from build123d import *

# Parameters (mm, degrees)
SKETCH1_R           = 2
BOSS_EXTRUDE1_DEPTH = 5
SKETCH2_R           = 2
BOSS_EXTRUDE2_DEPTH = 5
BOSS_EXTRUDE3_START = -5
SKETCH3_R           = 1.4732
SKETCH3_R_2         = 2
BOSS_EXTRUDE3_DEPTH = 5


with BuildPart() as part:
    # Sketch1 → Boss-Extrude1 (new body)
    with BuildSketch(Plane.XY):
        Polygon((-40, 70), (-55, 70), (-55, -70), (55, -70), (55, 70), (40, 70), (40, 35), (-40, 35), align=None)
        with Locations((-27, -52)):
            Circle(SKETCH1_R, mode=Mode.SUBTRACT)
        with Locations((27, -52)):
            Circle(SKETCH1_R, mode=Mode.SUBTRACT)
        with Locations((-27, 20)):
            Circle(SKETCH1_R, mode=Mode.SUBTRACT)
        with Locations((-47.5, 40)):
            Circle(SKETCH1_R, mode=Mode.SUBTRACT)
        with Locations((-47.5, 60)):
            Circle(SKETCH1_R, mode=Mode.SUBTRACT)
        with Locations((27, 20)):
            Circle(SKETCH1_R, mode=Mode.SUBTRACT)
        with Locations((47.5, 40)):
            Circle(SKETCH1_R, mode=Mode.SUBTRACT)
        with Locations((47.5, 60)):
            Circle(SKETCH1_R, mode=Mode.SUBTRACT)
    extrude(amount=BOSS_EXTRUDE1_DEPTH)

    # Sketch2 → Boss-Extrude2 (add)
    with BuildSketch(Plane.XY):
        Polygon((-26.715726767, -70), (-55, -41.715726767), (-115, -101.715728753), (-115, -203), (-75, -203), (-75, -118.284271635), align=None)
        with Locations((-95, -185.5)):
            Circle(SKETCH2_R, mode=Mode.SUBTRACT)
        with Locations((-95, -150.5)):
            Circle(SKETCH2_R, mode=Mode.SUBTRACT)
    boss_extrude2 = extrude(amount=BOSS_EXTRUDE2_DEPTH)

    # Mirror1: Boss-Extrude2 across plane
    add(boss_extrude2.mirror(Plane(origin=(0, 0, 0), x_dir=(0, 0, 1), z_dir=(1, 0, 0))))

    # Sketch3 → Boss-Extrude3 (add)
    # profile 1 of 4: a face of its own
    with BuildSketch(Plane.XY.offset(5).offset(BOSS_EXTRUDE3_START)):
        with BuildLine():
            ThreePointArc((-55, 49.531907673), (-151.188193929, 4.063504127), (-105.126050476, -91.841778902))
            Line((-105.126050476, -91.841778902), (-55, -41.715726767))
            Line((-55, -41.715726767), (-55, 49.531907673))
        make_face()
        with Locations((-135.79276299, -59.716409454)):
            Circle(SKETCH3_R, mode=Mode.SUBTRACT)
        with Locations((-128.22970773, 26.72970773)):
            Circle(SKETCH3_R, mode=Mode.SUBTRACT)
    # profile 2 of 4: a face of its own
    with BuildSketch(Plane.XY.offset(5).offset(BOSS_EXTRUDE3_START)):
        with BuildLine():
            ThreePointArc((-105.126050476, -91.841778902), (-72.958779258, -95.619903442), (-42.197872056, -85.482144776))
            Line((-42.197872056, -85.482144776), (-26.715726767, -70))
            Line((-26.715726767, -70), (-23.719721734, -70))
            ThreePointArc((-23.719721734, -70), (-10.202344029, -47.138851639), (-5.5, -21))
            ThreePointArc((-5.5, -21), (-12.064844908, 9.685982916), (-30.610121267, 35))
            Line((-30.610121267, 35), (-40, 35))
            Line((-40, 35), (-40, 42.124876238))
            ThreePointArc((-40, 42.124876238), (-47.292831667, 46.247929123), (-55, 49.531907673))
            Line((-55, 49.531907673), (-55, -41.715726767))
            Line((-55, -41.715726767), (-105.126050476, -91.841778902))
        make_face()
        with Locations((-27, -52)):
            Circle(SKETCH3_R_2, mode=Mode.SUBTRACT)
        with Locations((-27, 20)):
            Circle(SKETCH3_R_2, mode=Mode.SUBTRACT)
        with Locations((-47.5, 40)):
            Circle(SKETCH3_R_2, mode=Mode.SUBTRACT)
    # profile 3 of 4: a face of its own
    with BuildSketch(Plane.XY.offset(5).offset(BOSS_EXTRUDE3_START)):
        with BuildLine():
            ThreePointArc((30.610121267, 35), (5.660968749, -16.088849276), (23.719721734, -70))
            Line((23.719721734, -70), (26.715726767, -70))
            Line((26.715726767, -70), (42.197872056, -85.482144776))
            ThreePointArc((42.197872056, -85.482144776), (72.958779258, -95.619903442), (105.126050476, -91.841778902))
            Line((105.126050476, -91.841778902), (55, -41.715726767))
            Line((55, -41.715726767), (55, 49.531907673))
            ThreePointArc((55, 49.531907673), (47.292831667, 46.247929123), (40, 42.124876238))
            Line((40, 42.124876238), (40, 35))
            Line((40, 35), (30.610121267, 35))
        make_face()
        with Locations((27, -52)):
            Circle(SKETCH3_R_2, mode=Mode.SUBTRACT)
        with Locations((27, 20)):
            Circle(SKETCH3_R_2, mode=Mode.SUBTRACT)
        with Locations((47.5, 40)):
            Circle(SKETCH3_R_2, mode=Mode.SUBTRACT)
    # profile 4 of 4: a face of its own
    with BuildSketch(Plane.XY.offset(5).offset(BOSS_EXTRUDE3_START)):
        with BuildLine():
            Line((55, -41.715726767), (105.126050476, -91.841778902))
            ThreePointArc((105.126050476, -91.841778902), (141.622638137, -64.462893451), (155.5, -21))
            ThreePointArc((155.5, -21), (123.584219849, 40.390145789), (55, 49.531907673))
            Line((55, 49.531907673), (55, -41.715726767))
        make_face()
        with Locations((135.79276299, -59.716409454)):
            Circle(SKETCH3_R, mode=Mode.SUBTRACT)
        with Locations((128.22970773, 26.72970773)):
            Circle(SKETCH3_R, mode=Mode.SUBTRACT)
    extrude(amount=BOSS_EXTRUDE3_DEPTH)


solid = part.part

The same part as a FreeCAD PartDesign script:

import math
import FreeCAD as App
import Part
import Sketcher

V = App.Vector
Q = App.Units.Quantity


def add_polygon(sketch, points):
    """Adds a closed chain of lines whose ends are joined by coincident constraints."""
    first, n = sketch.GeometryCount, len(points)
    for a, b in zip(points, points[1:] + points[:1]):
        sketch.addGeometry(Part.LineSegment(App.Vector(*a, 0), App.Vector(*b, 0)), False)
    for i in range(n):
        sketch.addConstraint(Sketcher.Constraint("Coincident", first + i, 2, first + (i + 1) % n, 1))

doc = App.newDocument("Part")
body = doc.addObject("PartDesign::Body", "Body")

# Sketch on XY plane
sketch1 = body.newObject("Sketcher::SketchObject", "Sketch")
sketch1.AttachmentSupport = (doc.getObject("XY_Plane"), [""])
sketch1.MapMode = "FlatFace"
add_polygon(sketch1, [(-40, 70), (-55, 70), (-55, -70), (55, -70), (55, 70), (40, 70), (40, 35), (-40, 35)])  # lines 0-7
sketch1.addGeometry(Part.Circle(V(-27, -52, 0), V(0, 0, 1), 2), False)  # 8
sketch1.addGeometry(Part.Circle(V(27, -52, 0), V(0, 0, 1), 2), False)  # 9
sketch1.addGeometry(Part.Circle(V(-27, 20, 0), V(0, 0, 1), 2), False)  # 10
sketch1.addGeometry(Part.Circle(V(-47.5, 40, 0), V(0, 0, 1), 2), False)  # 11
sketch1.addGeometry(Part.Circle(V(-47.5, 60, 0), V(0, 0, 1), 2), False)  # 12
sketch1.addGeometry(Part.Circle(V(27, 20, 0), V(0, 0, 1), 2), False)  # 13
sketch1.addGeometry(Part.Circle(V(47.5, 40, 0), V(0, 0, 1), 2), False)  # 14
sketch1.addGeometry(Part.Circle(V(47.5, 60, 0), V(0, 0, 1), 2), False)  # 15
sketch1.addConstraint([
    Sketcher.Constraint("Horizontal", 0),
    Sketcher.Constraint("Vertical", 1),
    Sketcher.Constraint("Horizontal", 2),
    Sketcher.Constraint("Vertical", 3),
    Sketcher.Constraint("Horizontal", 4),
    Sketcher.Constraint("Vertical", 5),
    Sketcher.Constraint("Horizontal", 6),
    Sketcher.Constraint("Vertical", 7),
    Sketcher.Constraint("Equal", 8, 9),
    Sketcher.Constraint("Equal", 9, 10),
    Sketcher.Constraint("Equal", 10, 11),
    Sketcher.Constraint("Equal", 11, 12),
    Sketcher.Constraint("Equal", 12, 13),
    Sketcher.Constraint("Equal", 13, 14),
    Sketcher.Constraint("Equal", 14, 15),
    Sketcher.Constraint("Symmetric", 0, 2, 2, 2, -1, 1),
    Sketcher.Constraint("Symmetric", 8, 3, 9, 3, -2),
    Sketcher.Constraint("Symmetric", 10, 3, 13, 3, -2),
    Sketcher.Constraint("Symmetric", 11, 3, 14, 3, -2),
    Sketcher.Constraint("Symmetric", 12, 3, 15, 3, -2),
    Sketcher.Constraint("Symmetric", 4, 2, 7, 2, -2),
    Sketcher.Constraint("Vertical", 8, 3, 10, 3),
    Sketcher.Constraint("Vertical", 11, 3, 12, 3),
    Sketcher.Constraint("Diameter", 8, Q("4 mm")),
    Sketcher.Constraint("DistanceX", 0, 2, 0, 1, Q("15 mm")),
    Sketcher.Constraint("DistanceX", 2, 1, 2, 2, Q("110 mm")),
    Sketcher.Constraint("DistanceY", 1, 2, 1, 1, Q("140 mm")),
    Sketcher.Constraint("DistanceY", 5, 2, 5, 1, Q("35 mm")),
    Sketcher.Constraint("DistanceX", 8, 3, -1, 1, Q("27 mm")),
    Sketcher.Constraint("DistanceY", 8, 3, -1, 1, Q("52 mm")),
    Sketcher.Constraint("DistanceY", -1, 1, 10, 3, Q("20 mm")),
    Sketcher.Constraint("DistanceY", -1, 1, 11, 3, Q("40 mm")),
    Sketcher.Constraint("DistanceY", -1, 1, 12, 3, Q("60 mm")),
    Sketcher.Constraint("DistanceX", 11, 3, 14, 3, Q("95 mm")),
])
pad1 = body.newObject("PartDesign::Pad", "Pad")
pad1.Profile = sketch1
pad1.Length = 5

# Sketch on XY plane
sketch2 = body.newObject("Sketcher::SketchObject", "Sketch001")
sketch2.AttachmentSupport = (doc.getObject("XY_Plane"), [""])
sketch2.MapMode = "FlatFace"
add_polygon(sketch2, [(-26.7, -70), (-55, -41.7), (-115, -101.7), (-115, -203), (-75, -203), (-75, -118.3)])  # lines 0-5
sketch2.addGeometry(Part.Circle(V(-95, -185.5, 0), V(0, 0, 1), 2), False)  # 6
sketch2.addGeometry(Part.Circle(V(-95, -150.5, 0), V(0, 0, 1), 2), False)  # 7
sketch2.addConstraint([
    Sketcher.Constraint("Vertical", 2),
    Sketcher.Constraint("Horizontal", 3),
    Sketcher.Constraint("Vertical", 4),
    Sketcher.Constraint("Equal", 6, 7),
    Sketcher.Constraint("Perpendicular", 0, 1),
    Sketcher.Constraint("Parallel", 1, 5),
    Sketcher.Constraint("Vertical", 6, 3, 7, 3),
    Sketcher.Constraint("Diameter", 6, Q("4 mm")),
    Sketcher.Constraint("DistanceX", 3, 1, 3, 2, Q("40 mm")),
    Sketcher.Constraint("Angle", 0, Q("135 deg")),
    Sketcher.Constraint("DistanceX", 6, 3, -1, 1, Q("95 mm")),
    Sketcher.Constraint("DistanceX", 0, 2, -1, 1, Q("55 mm")),
    Sketcher.Constraint("DistanceX", 1, 2, -1, 1, Q("115 mm")),
    Sketcher.Constraint("DistanceY", 2, 2, -1, 1, Q("203 mm")),
    Sketcher.Constraint("DistanceY", 5, 2, -1, 1, Q("70 mm")),
    Sketcher.Constraint("DistanceY", 6, 3, 7, 3, Q("35 mm")),
    Sketcher.Constraint("DistanceY", 6, 3, -1, 1, Q("185.5 mm")),
    Sketcher.Constraint("DistanceY", 2, 2, 2, 1, Q("101.284271 mm")),
])
pad2 = body.newObject("PartDesign::Pad", "Pad001")
pad2.Profile = sketch2
pad2.Length = 5
doc.recompute()

mirrored = body.newObject("PartDesign::Mirrored", "Mirrored")
mirrored.Originals = [pad2]
mirrored.MirrorPlane = (doc.getObject("YZ_Plane"), [""])
body.Tip = mirrored

# Sketch on XY plane
sketch3 = body.newObject("Sketcher::SketchObject", "Sketch002")
sketch3.AttachmentSupport = (doc.getObject("XY_Plane"), [""])
sketch3.MapMode = "FlatFace"
sketch3.addGeometry([
    Part.ArcOfCircle(Part.Circle(V(-80.5, -21, 0), V(0, 0, 1), 75), math.radians(70), math.radians(251)),  # 0
    Part.ArcOfCircle(Part.Circle(V(-80.5, -21, 0), V(0, 0, 1), 75), math.radians(-109), math.radians(-59)),  # 1
    Part.LineSegment(V(-42.2, -85.5, 0), V(-26.7, -70, 0)),  # 2
    Part.LineSegment(V(-26.7, -70, 0), V(-23.7, -70, 0)),  # 3
    Part.ArcOfCircle(Part.Circle(V(-80.5, -21, 0), V(0, 0, 1), 75), math.radians(-41), math.radians(0)),  # 4
    Part.ArcOfCircle(Part.Circle(V(-80.5, -21, 0), V(0, 0, 1), 75), math.radians(0), math.radians(48)),  # 5
    Part.LineSegment(V(-30.6, 35, 0), V(-40, 35, 0)),  # 6
    Part.LineSegment(V(-40, 35, 0), V(-40, 42.1, 0)),  # 7
    Part.ArcOfCircle(Part.Circle(V(-80.5, -21, 0), V(0, 0, 1), 75), math.radians(57.32), math.radians(70.12)),  # 8
    Part.Circle(V(-135.8, -59.7, 0), V(0, 0, 1), 1.5),  # 9
    Part.Circle(V(-128.2, 26.7, 0), V(0, 0, 1), 1.5),  # 10
    Part.Circle(V(-47.5, 40, 0), V(0, 0, 1), 2),  # 11
    Part.Circle(V(-27, 20, 0), V(0, 0, 1), 2),  # 12
    Part.Circle(V(-27, -52, 0), V(0, 0, 1), 2),  # 13
    Part.ArcOfCircle(Part.Circle(V(80.5, -21, 0), V(0, 0, 1), 75), math.radians(132), math.radians(221)),  # 14
    Part.LineSegment(V(23.7, -70, 0), V(26.7, -70, 0)),  # 15
    Part.LineSegment(V(26.7, -70, 0), V(42.2, -85.5, 0)),  # 16
    Part.ArcOfCircle(Part.Circle(V(80.5, -21, 0), V(0, 0, 1), 75), math.radians(-121), math.radians(-71)),  # 17
    Part.ArcOfCircle(Part.Circle(V(80.5, -21, 0), V(0, 0, 1), 75), math.radians(-71), math.radians(0)),  # 18
    Part.ArcOfCircle(Part.Circle(V(80.5, -21, 0), V(0, 0, 1), 75), math.radians(0), math.radians(110)),  # 19
    Part.ArcOfCircle(Part.Circle(V(80.5, -21, 0), V(0, 0, 1), 75), math.radians(109.88), math.radians(122.68)),  # 20
    Part.LineSegment(V(40, 42.1, 0), V(40, 35, 0)),  # 21
    Part.LineSegment(V(40, 35, 0), V(30.6, 35, 0)),  # 22
    Part.Circle(V(27, -52, 0), V(0, 0, 1), 2),  # 23
    Part.Circle(V(27, 20, 0), V(0, 0, 1), 2),  # 24
    Part.Circle(V(47.5, 40, 0), V(0, 0, 1), 2),  # 25
    Part.Circle(V(135.8, -59.7, 0), V(0, 0, 1), 1.5),  # 26
    Part.Circle(V(128.2, 26.7, 0), V(0, 0, 1), 1.5),  # 27
], False)
sketch3.addConstraint([
    Sketcher.Constraint("Tangent", 0, 2, 1, 1),
    Sketcher.Constraint("Coincident", 1, 2, 2, 1),
    Sketcher.Constraint("Coincident", 2, 2, 3, 1),
    Sketcher.Constraint("Coincident", 3, 2, 4, 1),
    Sketcher.Constraint("Tangent", 4, 2, 5, 1),
    Sketcher.Constraint("Coincident", 5, 2, 6, 1),
    Sketcher.Constraint("Coincident", 6, 2, 7, 1),
    Sketcher.Constraint("Coincident", 7, 2, 8, 1),
    Sketcher.Constraint("Tangent", 8, 2, 0, 1),
    Sketcher.Constraint("Coincident", 14, 2, 15, 1),
    Sketcher.Constraint("Coincident", 15, 2, 16, 1),
    Sketcher.Constraint("Coincident", 16, 2, 17, 1),
    Sketcher.Constraint("Tangent", 17, 2, 18, 1),
    Sketcher.Constraint("Tangent", 18, 2, 19, 1),
    Sketcher.Constraint("Tangent", 19, 2, 20, 1),
    Sketcher.Constraint("Coincident", 20, 2, 21, 1),
    Sketcher.Constraint("Coincident", 21, 2, 22, 1),
    Sketcher.Constraint("Coincident", 22, 2, 14, 1),
    Sketcher.Constraint("Horizontal", 3),
    Sketcher.Constraint("Horizontal", 6),
    Sketcher.Constraint("Vertical", 7),
    Sketcher.Constraint("Horizontal", 15),
    Sketcher.Constraint("Vertical", 21),
    Sketcher.Constraint("Horizontal", 22),
    Sketcher.Constraint("Coincident", 4, 3, 0, 3),
    Sketcher.Constraint("Coincident", 17, 3, 14, 3),
    Sketcher.Constraint("Coincident", 19, 3, 14, 3),
    Sketcher.Constraint("Equal", 0, 1),
    Sketcher.Constraint("Equal", 1, 4),
    Sketcher.Constraint("Equal", 4, 5),
    Sketcher.Constraint("Equal", 5, 8),
    Sketcher.Constraint("Equal", 9, 10),
    Sketcher.Constraint("Equal", 11, 12),
    Sketcher.Constraint("Equal", 12, 13),
    Sketcher.Constraint("Equal", 8, 14),
    Sketcher.Constraint("Equal", 14, 17),
    Sketcher.Constraint("Equal", 19, 20),
    Sketcher.Constraint("Equal", 13, 23),
    Sketcher.Constraint("Equal", 23, 24),
    Sketcher.Constraint("Equal", 24, 25),
    Sketcher.Constraint("Equal", 10, 26),
    Sketcher.Constraint("Equal", 26, 27),
    Sketcher.Constraint("Symmetric", 0, 3, 14, 3, -2),
    Sketcher.Constraint("Symmetric", 13, 3, 23, 3, -2),
    Sketcher.Constraint("Symmetric", 12, 3, 24, 3, -2),
    Sketcher.Constraint("Symmetric", 11, 3, 25, 3, -2),
    Sketcher.Constraint("Symmetric", 9, 3, 26, 3, -2),
    Sketcher.Constraint("Symmetric", 10, 3, 27, 3, -2),
    Sketcher.Constraint("Symmetric", 2, 2, 15, 2, -2),
    Sketcher.Constraint("Symmetric", 6, 2, 21, 2, -2),
    Sketcher.Constraint("Perpendicular", 2, 16),
    Sketcher.Constraint("Horizontal", 20, 3, 4, 2),
    Sketcher.Constraint("Horizontal", 1, 2, 16, 2),
    Sketcher.Constraint("Horizontal", 0, 2, 17, 2),
    Sketcher.Constraint("Horizontal", 4, 2, 18, 2),
    Sketcher.Constraint("Horizontal", 8, 2, 19, 2),
    Sketcher.Constraint("Vertical", 12, 3, 13, 3),
    Sketcher.Constraint("Diameter", 11, Q("4 mm")),
    Sketcher.Constraint("Radius", 0, Q("75 mm")),
    Sketcher.Constraint("DistanceY", 0, 3, -1, 1, Q("21 mm")),
    Sketcher.Constraint("DistanceY", -1, 1, 11, 3, Q("40 mm")),
    Sketcher.Constraint("DistanceX", 12, 3, -1, 1, Q("27 mm")),
    Sketcher.Constraint("DistanceY", -1, 1, 12, 3, Q("20 mm")),
    Sketcher.Constraint("DistanceY", 13, 3, -1, 1, Q("52 mm")),
    Sketcher.Constraint("DistanceY", 2, 2, -1, 1, Q("70 mm")),
    Sketcher.Constraint("DistanceY", -1, 1, 5, 2, Q("35 mm")),
    Sketcher.Constraint("DistanceX", 6, 2, -1, 1, Q("40 mm")),
    Sketcher.Constraint("DistanceX", 8, 2, -1, 1, Q("55 mm")),
    Sketcher.Constraint("DistanceX", 1, 3, 11, 3, Q("33 mm")),
    Sketcher.Constraint("DistanceX", 11, 3, 14, 3, Q("128 mm")),
    Sketcher.Constraint("Diameter", 9, Q("2.9464 mm")),
    Sketcher.Constraint("DistanceX", 2, 2, 16, 2, Q("68.913599 mm")),
    Sketcher.Constraint("DistanceY", 9, 3, -1, 1, Q("59.716409 mm")),
    Sketcher.Constraint("DistanceX", 0, 2, -1, 1, Q("105.12605 mm")),
    Sketcher.Constraint("DistanceX", 9, 3, -1, 1, Q("135.792763 mm")),
    Sketcher.Constraint("DistanceX", 10, 3, -1, 1, Q("128.229708 mm")),
    Sketcher.Constraint("DistanceY", -1, 1, 10, 3, Q("26.729708 mm")),
])
pad3 = body.newObject("PartDesign::Pad", "Pad002")
pad3.Profile = sketch3
pad3.Length = 5

doc.recompute()
